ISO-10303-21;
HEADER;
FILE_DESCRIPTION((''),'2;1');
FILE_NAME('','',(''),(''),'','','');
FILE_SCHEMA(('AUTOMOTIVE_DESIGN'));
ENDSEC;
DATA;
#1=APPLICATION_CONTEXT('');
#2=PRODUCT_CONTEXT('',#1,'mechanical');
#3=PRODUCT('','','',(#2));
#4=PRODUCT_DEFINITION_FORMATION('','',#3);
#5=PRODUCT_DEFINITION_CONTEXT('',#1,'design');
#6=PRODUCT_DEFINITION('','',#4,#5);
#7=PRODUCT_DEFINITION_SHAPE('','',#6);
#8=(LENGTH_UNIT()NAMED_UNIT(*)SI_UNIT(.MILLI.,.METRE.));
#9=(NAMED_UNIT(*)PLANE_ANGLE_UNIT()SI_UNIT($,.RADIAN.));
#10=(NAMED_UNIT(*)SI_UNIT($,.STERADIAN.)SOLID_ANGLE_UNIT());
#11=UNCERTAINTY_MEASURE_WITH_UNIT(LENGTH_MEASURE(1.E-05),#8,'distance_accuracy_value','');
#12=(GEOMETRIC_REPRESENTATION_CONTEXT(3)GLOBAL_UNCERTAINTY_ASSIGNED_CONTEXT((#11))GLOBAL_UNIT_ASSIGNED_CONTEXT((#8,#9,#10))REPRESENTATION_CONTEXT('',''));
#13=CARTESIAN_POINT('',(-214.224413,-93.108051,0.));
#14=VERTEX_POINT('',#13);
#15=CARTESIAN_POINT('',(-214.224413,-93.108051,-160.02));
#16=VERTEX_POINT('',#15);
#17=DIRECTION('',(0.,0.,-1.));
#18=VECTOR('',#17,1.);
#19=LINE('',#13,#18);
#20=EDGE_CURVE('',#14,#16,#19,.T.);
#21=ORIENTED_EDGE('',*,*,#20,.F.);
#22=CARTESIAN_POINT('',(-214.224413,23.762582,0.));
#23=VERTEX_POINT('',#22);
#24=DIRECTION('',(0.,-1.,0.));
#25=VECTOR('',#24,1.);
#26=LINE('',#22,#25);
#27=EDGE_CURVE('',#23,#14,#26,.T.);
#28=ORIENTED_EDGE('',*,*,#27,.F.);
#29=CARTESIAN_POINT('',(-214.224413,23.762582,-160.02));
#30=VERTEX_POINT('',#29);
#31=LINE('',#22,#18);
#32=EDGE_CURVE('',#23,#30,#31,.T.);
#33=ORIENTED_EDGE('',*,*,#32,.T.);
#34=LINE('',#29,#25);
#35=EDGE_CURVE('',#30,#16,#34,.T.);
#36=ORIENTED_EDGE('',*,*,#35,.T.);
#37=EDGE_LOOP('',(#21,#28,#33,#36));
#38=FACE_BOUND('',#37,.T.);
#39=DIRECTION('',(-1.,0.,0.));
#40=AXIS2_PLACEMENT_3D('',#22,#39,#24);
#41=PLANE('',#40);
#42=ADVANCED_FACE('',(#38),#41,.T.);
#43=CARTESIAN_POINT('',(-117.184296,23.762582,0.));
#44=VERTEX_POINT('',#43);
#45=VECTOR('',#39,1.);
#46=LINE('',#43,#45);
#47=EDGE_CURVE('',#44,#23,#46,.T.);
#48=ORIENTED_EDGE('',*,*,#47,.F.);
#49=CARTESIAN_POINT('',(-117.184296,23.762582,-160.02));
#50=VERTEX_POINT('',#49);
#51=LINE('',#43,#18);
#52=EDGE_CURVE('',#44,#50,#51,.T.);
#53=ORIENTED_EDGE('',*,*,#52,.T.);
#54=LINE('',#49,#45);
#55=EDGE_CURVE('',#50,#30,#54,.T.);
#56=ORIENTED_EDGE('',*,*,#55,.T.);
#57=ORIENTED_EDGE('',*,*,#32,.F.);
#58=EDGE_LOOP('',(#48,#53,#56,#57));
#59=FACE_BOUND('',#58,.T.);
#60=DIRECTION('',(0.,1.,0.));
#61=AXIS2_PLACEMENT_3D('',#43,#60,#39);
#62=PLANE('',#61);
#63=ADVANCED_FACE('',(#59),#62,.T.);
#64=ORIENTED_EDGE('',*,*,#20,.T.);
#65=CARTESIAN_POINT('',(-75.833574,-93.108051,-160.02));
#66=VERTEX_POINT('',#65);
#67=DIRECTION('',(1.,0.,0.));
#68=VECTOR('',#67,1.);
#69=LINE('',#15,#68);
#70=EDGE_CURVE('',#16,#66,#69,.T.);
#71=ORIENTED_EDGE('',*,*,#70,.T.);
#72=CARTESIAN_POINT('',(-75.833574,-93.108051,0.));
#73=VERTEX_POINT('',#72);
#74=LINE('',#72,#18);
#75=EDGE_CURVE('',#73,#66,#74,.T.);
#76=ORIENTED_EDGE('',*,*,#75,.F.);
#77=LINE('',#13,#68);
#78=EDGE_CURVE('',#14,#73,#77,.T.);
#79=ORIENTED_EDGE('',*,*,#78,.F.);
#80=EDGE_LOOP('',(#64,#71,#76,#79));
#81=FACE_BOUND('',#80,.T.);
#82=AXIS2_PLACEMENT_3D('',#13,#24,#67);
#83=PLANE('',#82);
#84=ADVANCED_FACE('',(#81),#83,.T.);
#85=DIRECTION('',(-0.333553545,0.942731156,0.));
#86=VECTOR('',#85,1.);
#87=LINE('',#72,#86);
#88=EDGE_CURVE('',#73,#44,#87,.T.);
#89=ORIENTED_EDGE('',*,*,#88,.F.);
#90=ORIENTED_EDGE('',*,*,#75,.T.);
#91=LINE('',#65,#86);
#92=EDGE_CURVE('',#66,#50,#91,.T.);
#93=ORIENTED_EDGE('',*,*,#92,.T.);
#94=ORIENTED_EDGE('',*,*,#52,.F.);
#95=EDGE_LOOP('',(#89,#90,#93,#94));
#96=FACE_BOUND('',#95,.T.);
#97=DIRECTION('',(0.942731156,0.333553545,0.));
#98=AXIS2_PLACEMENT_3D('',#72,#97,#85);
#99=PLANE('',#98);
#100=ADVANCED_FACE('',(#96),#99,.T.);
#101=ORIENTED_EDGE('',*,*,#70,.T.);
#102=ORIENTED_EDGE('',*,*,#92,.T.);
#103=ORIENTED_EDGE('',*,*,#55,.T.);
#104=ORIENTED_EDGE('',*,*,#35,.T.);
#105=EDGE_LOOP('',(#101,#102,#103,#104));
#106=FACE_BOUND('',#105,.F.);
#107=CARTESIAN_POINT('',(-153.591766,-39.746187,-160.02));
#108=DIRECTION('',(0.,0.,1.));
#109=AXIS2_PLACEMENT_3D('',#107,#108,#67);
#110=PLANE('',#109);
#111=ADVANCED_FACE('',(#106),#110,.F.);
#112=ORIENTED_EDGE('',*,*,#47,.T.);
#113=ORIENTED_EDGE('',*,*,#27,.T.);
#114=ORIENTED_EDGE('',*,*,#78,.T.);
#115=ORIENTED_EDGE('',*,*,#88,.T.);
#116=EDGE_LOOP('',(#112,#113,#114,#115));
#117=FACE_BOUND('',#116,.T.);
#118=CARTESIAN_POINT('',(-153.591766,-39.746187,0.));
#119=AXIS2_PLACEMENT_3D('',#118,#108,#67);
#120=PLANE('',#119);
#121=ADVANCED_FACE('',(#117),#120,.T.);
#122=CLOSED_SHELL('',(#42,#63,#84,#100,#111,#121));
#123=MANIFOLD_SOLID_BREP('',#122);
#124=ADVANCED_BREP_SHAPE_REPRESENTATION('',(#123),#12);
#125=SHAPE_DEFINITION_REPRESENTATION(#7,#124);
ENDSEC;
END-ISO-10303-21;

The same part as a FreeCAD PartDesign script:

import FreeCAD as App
import Part
import Sketcher
Q = App.Units.Quantity

doc = App.newDocument("Part")
body = doc.addObject("PartDesign::Body", "Body")

# Sketch on XY plane
sketch1 = body.newObject("Sketcher::SketchObject", "Sketch")
sketch1.AttachmentSupport = (doc.getObject("XY_Plane"), [""])
sketch1.MapMode = "FlatFace"
sketch1.addGeometry(Part.LineSegment(App.Vector(-214, -93, 0), App.Vector(-76, -93, 0)), False)
sketch1.addGeometry(Part.LineSegment(App.Vector(-76, -93, 0), App.Vector(-117, 24, 0)), False)
sketch1.addGeometry(Part.LineSegment(App.Vector(-117, 24, 0), App.Vector(-214, 24, 0)), False)
sketch1.addGeometry(Part.LineSegment(App.Vector(-214, 24, 0), App.Vector(-214, -93, 0)), False)
sketch1.addConstraint(Sketcher.Constraint("Coincident", 0, 2, 1, 1))
sketch1.addConstraint(Sketcher.Constraint("Coincident", 1, 2, 2, 1))
sketch1.addConstraint(Sketcher.Constraint("Coincident", 2, 2, 3, 1))
sketch1.addConstraint(Sketcher.Constraint("Coincident", 3, 2, 0, 1))
sketch1.addConstraint(Sketcher.Constraint("Horizontal", 0))
sketch1.addConstraint(Sketcher.Constraint("Horizontal", 2))
sketch1.addConstraint(Sketcher.Constraint("Vertical", 3))
sketch1.addConstraint(Sketcher.Constraint("DistanceX", 0, 1, 0, 2, Q("138.390839 mm")))
sketch1.addConstraint(Sketcher.Constraint("DistanceX", 2, 2, 2, 1, Q("97.040117 mm")))
sketch1.addConstraint(Sketcher.Constraint("DistanceY", 3, 2, 3, 1, Q("116.870633 mm")))
sketch1.addConstraint(Sketcher.Constraint("DistanceY", 0, 2, -1, 1, Q("93.108051 mm")))
sketch1.addConstraint(Sketcher.Constraint("DistanceX", 0, 2, -1, 1, Q("75.833574 mm")))
pad1 = body.newObject("PartDesign::Pad", "Pad")
pad1.Profile = sketch1
pad1.Length = Q("6.3 in")
pad1.Reversed = True

doc.recompute()
